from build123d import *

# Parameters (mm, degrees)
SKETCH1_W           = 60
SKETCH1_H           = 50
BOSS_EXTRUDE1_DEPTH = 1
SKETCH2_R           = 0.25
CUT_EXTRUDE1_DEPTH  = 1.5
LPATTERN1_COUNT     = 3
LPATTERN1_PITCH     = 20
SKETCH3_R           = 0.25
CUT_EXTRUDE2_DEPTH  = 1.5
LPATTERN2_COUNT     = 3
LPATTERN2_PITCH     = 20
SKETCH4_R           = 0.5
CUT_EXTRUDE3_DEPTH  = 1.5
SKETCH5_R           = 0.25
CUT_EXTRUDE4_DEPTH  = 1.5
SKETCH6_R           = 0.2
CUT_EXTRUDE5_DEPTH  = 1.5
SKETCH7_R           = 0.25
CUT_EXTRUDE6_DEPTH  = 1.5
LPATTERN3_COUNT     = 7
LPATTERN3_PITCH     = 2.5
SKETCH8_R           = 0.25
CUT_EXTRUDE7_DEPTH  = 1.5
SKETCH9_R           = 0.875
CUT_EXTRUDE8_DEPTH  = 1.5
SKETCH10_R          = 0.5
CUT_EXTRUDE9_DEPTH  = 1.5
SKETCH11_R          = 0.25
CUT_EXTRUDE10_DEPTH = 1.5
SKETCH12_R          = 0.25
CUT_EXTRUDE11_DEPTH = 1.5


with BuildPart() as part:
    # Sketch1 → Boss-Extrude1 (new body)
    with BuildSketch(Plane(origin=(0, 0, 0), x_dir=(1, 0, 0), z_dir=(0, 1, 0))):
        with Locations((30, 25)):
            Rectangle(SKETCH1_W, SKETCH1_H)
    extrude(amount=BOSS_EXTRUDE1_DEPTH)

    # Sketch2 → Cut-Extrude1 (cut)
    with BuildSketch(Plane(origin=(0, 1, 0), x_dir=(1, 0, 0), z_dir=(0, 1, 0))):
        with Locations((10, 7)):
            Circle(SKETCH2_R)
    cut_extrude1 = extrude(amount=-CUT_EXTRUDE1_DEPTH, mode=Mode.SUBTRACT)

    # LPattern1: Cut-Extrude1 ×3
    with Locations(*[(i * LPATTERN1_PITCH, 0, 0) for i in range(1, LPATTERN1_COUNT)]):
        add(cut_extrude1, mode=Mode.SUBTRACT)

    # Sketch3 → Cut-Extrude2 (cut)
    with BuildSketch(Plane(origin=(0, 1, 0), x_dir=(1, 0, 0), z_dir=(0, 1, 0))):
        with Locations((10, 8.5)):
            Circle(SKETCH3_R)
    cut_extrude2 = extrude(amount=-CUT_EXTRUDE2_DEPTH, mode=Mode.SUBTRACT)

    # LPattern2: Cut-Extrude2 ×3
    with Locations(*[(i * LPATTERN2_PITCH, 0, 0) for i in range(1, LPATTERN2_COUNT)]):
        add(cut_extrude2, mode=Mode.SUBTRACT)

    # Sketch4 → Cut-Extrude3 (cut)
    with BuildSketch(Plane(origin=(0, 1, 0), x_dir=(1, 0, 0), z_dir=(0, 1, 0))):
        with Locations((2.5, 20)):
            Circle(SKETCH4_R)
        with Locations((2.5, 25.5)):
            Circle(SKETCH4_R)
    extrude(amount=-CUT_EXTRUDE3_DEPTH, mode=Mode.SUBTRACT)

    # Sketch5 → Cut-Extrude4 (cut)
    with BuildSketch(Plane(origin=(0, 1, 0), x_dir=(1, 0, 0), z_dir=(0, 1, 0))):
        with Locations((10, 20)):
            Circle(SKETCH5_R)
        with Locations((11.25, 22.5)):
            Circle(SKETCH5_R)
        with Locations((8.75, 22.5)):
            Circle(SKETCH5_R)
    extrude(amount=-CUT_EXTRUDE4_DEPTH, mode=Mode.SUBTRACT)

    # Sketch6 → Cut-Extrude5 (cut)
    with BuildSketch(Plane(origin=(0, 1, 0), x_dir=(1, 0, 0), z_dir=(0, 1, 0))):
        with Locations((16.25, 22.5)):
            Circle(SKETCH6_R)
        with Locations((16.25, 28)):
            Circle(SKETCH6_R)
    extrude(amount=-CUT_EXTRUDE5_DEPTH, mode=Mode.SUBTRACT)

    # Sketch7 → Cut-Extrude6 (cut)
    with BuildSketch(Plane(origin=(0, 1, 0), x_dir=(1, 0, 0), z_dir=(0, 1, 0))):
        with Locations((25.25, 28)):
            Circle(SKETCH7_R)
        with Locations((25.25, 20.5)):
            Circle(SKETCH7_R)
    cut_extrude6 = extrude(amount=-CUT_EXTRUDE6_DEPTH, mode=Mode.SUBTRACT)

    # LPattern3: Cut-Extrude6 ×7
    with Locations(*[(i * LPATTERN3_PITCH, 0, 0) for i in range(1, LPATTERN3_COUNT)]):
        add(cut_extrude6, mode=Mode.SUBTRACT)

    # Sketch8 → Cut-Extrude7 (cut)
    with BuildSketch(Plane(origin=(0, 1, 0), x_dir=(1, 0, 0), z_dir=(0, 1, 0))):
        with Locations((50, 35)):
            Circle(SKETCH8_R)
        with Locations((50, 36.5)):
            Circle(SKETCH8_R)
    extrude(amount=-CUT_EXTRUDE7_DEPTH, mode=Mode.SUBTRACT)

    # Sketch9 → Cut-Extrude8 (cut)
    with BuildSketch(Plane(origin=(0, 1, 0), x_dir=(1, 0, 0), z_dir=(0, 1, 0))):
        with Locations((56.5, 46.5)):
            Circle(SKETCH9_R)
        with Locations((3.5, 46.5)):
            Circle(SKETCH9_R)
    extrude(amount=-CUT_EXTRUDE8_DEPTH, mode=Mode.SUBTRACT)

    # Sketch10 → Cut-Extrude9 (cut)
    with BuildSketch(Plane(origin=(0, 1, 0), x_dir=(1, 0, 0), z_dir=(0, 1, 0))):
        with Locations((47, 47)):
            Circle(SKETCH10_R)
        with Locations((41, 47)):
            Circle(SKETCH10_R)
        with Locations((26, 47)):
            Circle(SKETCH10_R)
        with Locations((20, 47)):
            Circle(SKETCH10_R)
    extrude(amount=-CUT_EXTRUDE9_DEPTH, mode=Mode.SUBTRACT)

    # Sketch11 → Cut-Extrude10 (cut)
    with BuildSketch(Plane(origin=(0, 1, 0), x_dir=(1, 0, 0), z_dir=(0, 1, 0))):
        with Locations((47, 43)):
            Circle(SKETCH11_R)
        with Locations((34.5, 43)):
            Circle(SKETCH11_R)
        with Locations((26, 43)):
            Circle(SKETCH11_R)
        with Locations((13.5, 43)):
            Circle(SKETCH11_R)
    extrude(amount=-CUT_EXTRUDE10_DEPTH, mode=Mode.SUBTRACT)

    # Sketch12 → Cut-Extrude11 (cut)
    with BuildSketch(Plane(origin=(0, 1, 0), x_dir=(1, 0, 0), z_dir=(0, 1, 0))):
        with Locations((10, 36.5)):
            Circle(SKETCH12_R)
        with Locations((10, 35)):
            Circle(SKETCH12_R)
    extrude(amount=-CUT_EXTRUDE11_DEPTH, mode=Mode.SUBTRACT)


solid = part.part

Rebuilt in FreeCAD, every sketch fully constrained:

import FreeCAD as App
import Part
import Sketcher


def add_polygon(sketch, points):
    """Adds a closed chain of lines whose ends are joined by coincident constraints."""
    first, n = sketch.GeometryCount, len(points)
    for a, b in zip(points, points[1:] + points[:1]):
        sketch.addGeometry(Part.LineSegment(App.Vector(*a, 0), App.Vector(*b, 0)), False)
    for i in range(n):
        sketch.addConstraint(Sketcher.Constraint("Coincident", first + i, 2, first + (i + 1) % n, 1))

doc = App.newDocument("Part")
params = doc.addObject("Spreadsheet::Sheet", "Params")
for row, (alias, value) in enumerate([
    ("sketch1_width", "60 mm"),
    ("sketch1_height", "50 mm"),
    ("pad1_length", "1 mm"),
    ("sketch2_diameter", "0.5 mm"),
    ("pocket1_length", "1.5 mm"),
    ("linearpattern_pitch", "20 mm"),
    ("sketch3_diameter", "0.5 mm"),
    ("pocket2_length", "1.5 mm"),
    ("linearpattern2_pitch", "20 mm"),
    ("sketch4_diameter", "1 mm"),
    ("pocket3_length", "1.5 mm"),
    ("sketch5_diameter", "0.5 mm"),
    ("pocket4_length", "1.5 mm"),
    ("sketch6_diameter", "0.4 mm"),
    ("pocket5_length", "1.5 mm"),
    ("sketch7_diameter", "0.5 mm"),
    ("pocket6_length", "1.5 mm"),
    ("linearpattern3_pitch", "2.5 mm"),
    ("sketch8_diameter", "0.5 mm"),
    ("pocket7_length", "1.5 mm"),
    ("sketch9_diameter", "1.75 mm"),
    ("pocket8_length", "1.5 mm"),
    ("sketch10_diameter", "1 mm"),
    ("pocket9_length", "1.5 mm"),
    ("sketch11_diameter", "0.5 mm"),
    ("pocket10_length", "1.5 mm"),
    ("sketch12_diameter", "0.5 mm"),
    ("pocket11_length", "1.5 mm"),
], start=1):
    params.set(f"A{row}", alias)
    params.set(f"B{row}", "=" + value)
    params.setAlias(f"B{row}", alias)

body = doc.addObject("PartDesign::Body", "Body")

sketch1 = body.newObject("Sketcher::SketchObject", "Sketch")
sketch1.AttachmentSupport = (doc.getObject("XZ_Plane"), [""])
sketch1.MapMode = "FlatFace"
add_polygon(sketch1, [(0, -50), (0, 0), (60, 0), (60, -50)])
sketch1.addConstraint([
    Sketcher.Constraint("Vertical", 0),
    Sketcher.Constraint("Horizontal", 1),
    Sketcher.Constraint("Vertical", 2),
    Sketcher.Constraint("Horizontal", 3),
    Sketcher.Constraint("Coincident", 0, 2, -1, 1),
    Sketcher.Constraint("DistanceX", 1, 1, 1, 2, 60.0),
    Sketcher.Constraint("DistanceY", 0, 1, 0, 2, 50.0),
])
sketch1.setExpression("Constraints[9]", "Params.sketch1_width")
sketch1.setExpression("Constraints[10]", "Params.sketch1_height")
pad1 = body.newObject("PartDesign::Pad", "Pad")
pad1.Profile = sketch1
pad1.setExpression("Length", "Params.pad1_length")
pad1.Reversed = True

sketch2 = body.newObject("Sketcher::SketchObject", "Sketch001")
sketch2.AttachmentSupport = (doc.getObject("XZ_Plane"), [""])
sketch2.MapMode = "FlatFace"
sketch2.AttachmentOffset = App.Placement(App.Vector(0, 0, -1), App.Rotation())
sketch2.addGeometry(Part.Circle(App.Vector(10, -7, 0), App.Vector(0, 0, 1), 0.25), False)
sketch2.addConstraint([
    Sketcher.Constraint("Diameter", 0, 0.5),
    Sketcher.Constraint("DistanceX", -1, 1, 0, 3, 10.0),
    Sketcher.Constraint("DistanceY", 0, 3, -1, 1, 7.0),
])
sketch2.setExpression("Constraints[0]", "Params.sketch2_diameter")
pocket1 = body.newObject("PartDesign::Pocket", "Pocket")
pocket1.Profile = sketch2
pocket1.setExpression("Length", "Params.pocket1_length")
pocket1.Reversed = True
doc.recompute()

linearpattern = body.newObject("PartDesign::LinearPattern", "LinearPattern")
linearpattern.Originals = [pocket1]
linearpattern.Direction = (doc.getObject("X_Axis"), [""])
linearpattern.Mode = "offset"
linearpattern.setExpression("Offset", "Params.linearpattern_pitch")
linearpattern.Occurrences = 3
body.Tip = linearpattern

sketch3 = body.newObject("Sketcher::SketchObject", "Sketch002")
sketch3.AttachmentSupport = (doc.getObject("XZ_Plane"), [""])
sketch3.MapMode = "FlatFace"
sketch3.AttachmentOffset = App.Placement(App.Vector(0, 0, -1), App.Rotation())
sketch3.addGeometry(Part.Circle(App.Vector(10, -8.5, 0), App.Vector(0, 0, 1), 0.25), False)
sketch3.addConstraint([
    Sketcher.Constraint("Diameter", 0, 0.5),
    Sketcher.Constraint("DistanceX", -1, 1, 0, 3, 10.0),
    Sketcher.Constraint("DistanceY", 0, 3, -1, 1, 8.5),
])
sketch3.setExpression("Constraints[0]", "Params.sketch3_diameter")
pocket2 = body.newObject("PartDesign::Pocket", "Pocket001")
pocket2.Profile = sketch3
pocket2.setExpression("Length", "Params.pocket2_length")
pocket2.Reversed = True
doc.recompute()

linearpattern2 = body.newObject("PartDesign::LinearPattern", "LinearPattern001")
linearpattern2.Originals = [pocket2]
linearpattern2.Direction = (doc.getObject("X_Axis"), [""])
linearpattern2.Mode = "offset"
linearpattern2.setExpression("Offset", "Params.linearpattern2_pitch")
linearpattern2.Occurrences = 3
body.Tip = linearpattern2

sketch4 = body.newObject("Sketcher::SketchObject", "Sketch003")
sketch4.AttachmentSupport = (doc.getObject("XZ_Plane"), [""])
sketch4.MapMode = "FlatFace"
sketch4.AttachmentOffset = App.Placement(App.Vector(0, 0, -1), App.Rotation())
sketch4.addGeometry([
    Part.Circle(App.Vector(2.5, -20, 0), App.Vector(0, 0, 1), 0.5),
    Part.Circle(App.Vector(2.5, -25.5, 0), App.Vector(0, 0, 1), 0.5),
], False)
sketch4.addConstraint([
    Sketcher.Constraint("Equal", 0, 1),
    Sketcher.Constraint("Vertical", 0, 3, 1, 3),
    Sketcher.Constraint("Diameter", 0, 1.0),
    Sketcher.Constraint("DistanceY", 0, 3, -1, 1, 20.0),
    Sketcher.Constraint("DistanceX", -1, 1, 0, 3, 2.5),
    Sketcher.Constraint("DistanceY", 1, 3, -1, 1, 25.5),
])
sketch4.setExpression("Constraints[2]", "Params.sketch4_diameter")
pocket3 = body.newObject("PartDesign::Pocket", "Pocket002")
pocket3.Profile = sketch4
pocket3.setExpression("Length", "Params.pocket3_length")
pocket3.Reversed = True

sketch5 = body.newObject("Sketcher::SketchObject", "Sketch004")
sketch5.AttachmentSupport = (doc.getObject("XZ_Plane"), [""])
sketch5.MapMode = "FlatFace"
sketch5.AttachmentOffset = App.Placement(App.Vector(0, 0, -1), App.Rotation())
sketch5.addGeometry([
    Part.Circle(App.Vector(10, -20, 0), App.Vector(0, 0, 1), 0.25),
    Part.Circle(App.Vector(11.25, -22.5, 0), App.Vector(0, 0, 1), 0.25),
    Part.Circle(App.Vector(8.75, -22.5, 0), App.Vector(0, 0, 1), 0.25),
], False)
sketch5.addConstraint([
    Sketcher.Constraint("Equal", 0, 1),
    Sketcher.Constraint("Equal", 1, 2),
    Sketcher.Constraint("Horizontal", 1, 3, 2, 3),
    Sketcher.Constraint("Diameter", 0, 0.5),
    Sketcher.Constraint("DistanceX", -1, 1, 0, 3, 10.0),
    Sketcher.Constraint("DistanceY", 0, 3, -1, 1, 20.0),
    Sketcher.Constraint("DistanceY", 1, 3, -1, 1, 22.5),
    Sketcher.Constraint("DistanceX", 2, 3, 1, 3, 2.5),
    Sketcher.Constraint("DistanceX", -1, 1, 1, 3, 11.25),
])
sketch5.setExpression("Constraints[3]", "Params.sketch5_diameter")
pocket4 = body.newObject("PartDesign::Pocket", "Pocket003")
pocket4.Profile = sketch5
pocket4.setExpression("Length", "Params.pocket4_length")
pocket4.Reversed = True

sketch6 = body.newObject("Sketcher::SketchObject", "Sketch005")
sketch6.AttachmentSupport = (doc.getObject("XZ_Plane"), [""])
sketch6.MapMode = "FlatFace"
sketch6.AttachmentOffset = App.Placement(App.Vector(0, 0, -1), App.Rotation())
sketch6.addGeometry([
    Part.Circle(App.Vector(16.25, -22.5, 0), App.Vector(0, 0, 1), 0.2),
    Part.Circle(App.Vector(16.25, -28, 0), App.Vector(0, 0, 1), 0.2),
], False)
sketch6.addConstraint([
    Sketcher.Constraint("Equal", 0, 1),
    Sketcher.Constraint("Vertical", 0, 3, 1, 3),
    Sketcher.Constraint("Diameter", 0, 0.4),
    Sketcher.Constraint("DistanceY", 1, 3, -1, 1, 28.0),
    Sketcher.Constraint("DistanceY", 0, 3, -1, 1, 22.5),
    Sketcher.Constraint("DistanceX", -1, 1, 0, 3, 16.25),
])
sketch6.setExpression("Constraints[2]", "Params.sketch6_diameter")
pocket5 = body.newObject("PartDesign::Pocket", "Pocket004")
pocket5.Profile = sketch6
pocket5.setExpression("Length", "Params.pocket5_length")
pocket5.Reversed = True

sketch7 = body.newObject("Sketcher::SketchObject", "Sketch006")
sketch7.AttachmentSupport = (doc.getObject("XZ_Plane"), [""])
sketch7.MapMode = "FlatFace"
sketch7.AttachmentOffset = App.Placement(App.Vector(0, 0, -1), App.Rotation())
sketch7.addGeometry([
    Part.Circle(App.Vector(25.25, -28, 0), App.Vector(0, 0, 1), 0.25),
    Part.Circle(App.Vector(25.25, -20.5, 0), App.Vector(0, 0, 1), 0.25),
], False)
sketch7.addConstraint([
    Sketcher.Constraint("Equal", 0, 1),
    Sketcher.Constraint("Vertical", 0, 3, 1, 3),
    Sketcher.Constraint("Diameter", 0, 0.5),
    Sketcher.Constraint("DistanceY", 0, 3, -1, 1, 28.0),
    Sketcher.Constraint("DistanceY", 1, 3, -1, 1, 20.5),
    Sketcher.Constraint("DistanceX", -1, 1, 0, 3, 25.25),
])
sketch7.setExpression("Constraints[2]", "Params.sketch7_diameter")
pocket6 = body.newObject("PartDesign::Pocket", "Pocket005")
pocket6.Profile = sketch7
pocket6.setExpression("Length", "Params.pocket6_length")
pocket6.Reversed = True
doc.recompute()

linearpattern3 = body.newObject("PartDesign::LinearPattern", "LinearPattern002")
linearpattern3.Originals = [pocket6]
linearpattern3.Direction = (doc.getObject("X_Axis"), [""])
linearpattern3.Mode = "offset"
linearpattern3.setExpression("Offset", "Params.linearpattern3_pitch")
linearpattern3.Occurrences = 7
body.Tip = linearpattern3

sketch8 = body.newObject("Sketcher::SketchObject", "Sketch007")
sketch8.AttachmentSupport = (doc.getObject("XZ_Plane"), [""])
sketch8.MapMode = "FlatFace"
sketch8.AttachmentOffset = App.Placement(App.Vector(0, 0, -1), App.Rotation())
sketch8.addGeometry([
    Part.Circle(App.Vector(50, -35, 0), App.Vector(0, 0, 1), 0.25),
    Part.Circle(App.Vector(50, -36.5, 0), App.Vector(0, 0, 1), 0.25),
], False)
sketch8.addConstraint([
    Sketcher.Constraint("Equal", 0, 1),
    Sketcher.Constraint("Vertical", 0, 3, 1, 3),
    Sketcher.Constraint("Diameter", 0, 0.5),
    Sketcher.Constraint("DistanceX", -1, 1, 0, 3, 50.0),
    Sketcher.Constraint("DistanceY", 0, 3, -1, 1, 35.0),
    Sketcher.Constraint("DistanceY", 1, 3, -1, 1, 36.5),
])
sketch8.setExpression("Constraints[2]", "Params.sketch8_diameter")
pocket7 = body.newObject("PartDesign::Pocket", "Pocket006")
pocket7.Profile = sketch8
pocket7.setExpression("Length", "Params.pocket7_length")
pocket7.Reversed = True

sketch9 = body.newObject("Sketcher::SketchObject", "Sketch008")
sketch9.AttachmentSupport = (doc.getObject("XZ_Plane"), [""])
sketch9.MapMode = "FlatFace"
sketch9.AttachmentOffset = App.Placement(App.Vector(0, 0, -1), App.Rotation())
sketch9.addGeometry([
    Part.Circle(App.Vector(56.5, -46.5, 0), App.Vector(0, 0, 1), 0.875),
    Part.Circle(App.Vector(3.5, -46.5, 0), App.Vector(0, 0, 1), 0.875),
], False)
sketch9.addConstraint([
    Sketcher.Constraint("Equal", 0, 1),
    Sketcher.Constraint("Horizontal", 0, 3, 1, 3),
    Sketcher.Constraint("Diameter", 0, 1.75),
    Sketcher.Constraint("DistanceX", 1, 3, 0, 3, 53.0),
    Sketcher.Constraint("DistanceX", -1, 1, 0, 3, 56.5),
    Sketcher.Constraint("DistanceY", 0, 3, -1, 1, 46.5),
])
sketch9.setExpression("Constraints[2]", "Params.sketch9_diameter")
pocket8 = body.newObject("PartDesign::Pocket", "Pocket007")
pocket8.Profile = sketch9
pocket8.setExpression("Length", "Params.pocket8_length")
pocket8.Reversed = True

sketch10 = body.newObject("Sketcher::SketchObject", "Sketch009")
sketch10.AttachmentSupport = (doc.getObject("XZ_Plane"), [""])
sketch10.MapMode = "FlatFace"
sketch10.AttachmentOffset = App.Placement(App.Vector(0, 0, -1), App.Rotation())
sketch10.addGeometry([
    Part.Circle(App.Vector(47, -47, 0), App.Vector(0, 0, 1), 0.5),
    Part.Circle(App.Vector(41, -47, 0), App.Vector(0, 0, 1), 0.5),
    Part.Circle(App.Vector(26, -47, 0), App.Vector(0, 0, 1), 0.5),
    Part.Circle(App.Vector(20, -47, 0), App.Vector(0, 0, 1), 0.5),
], False)
sketch10.addConstraint([
    Sketcher.Constraint("Equal", 0, 1),
    Sketcher.Constraint("Equal", 1, 2),
    Sketcher.Constraint("Equal", 2, 3),
    Sketcher.Constraint("Horizontal", 0, 3, 1, 3),
    Sketcher.Constraint("Horizontal", 1, 3, 2, 3),
    Sketcher.Constraint("Horizontal", 2, 3, 3, 3),
    Sketcher.Constraint("Diameter", 0, 1.0),
    Sketcher.Constraint("DistanceX", -1, 1, 0, 3, 47.0),
    Sketcher.Constraint("DistanceY", 0, 3, -1, 1, 47.0),
    Sketcher.Constraint("DistanceX", -1, 1, 1, 3, 41.0),
    Sketcher.Constraint("DistanceX", -1, 1, 2, 3, 26.0),
    Sketcher.Constraint("DistanceX", -1, 1, 3, 3, 20.0),
])
sketch10.setExpression("Constraints[6]", "Params.sketch10_diameter")
pocket9 = body.newObject("PartDesign::Pocket", "Pocket008")
pocket9.Profile = sketch10
pocket9.setExpression("Length", "Params.pocket9_length")
pocket9.Reversed = True

sketch11 = body.newObject("Sketcher::SketchObject", "Sketch010")
sketch11.AttachmentSupport = (doc.getObject("XZ_Plane"), [""])
sketch11.MapMode = "FlatFace"
sketch11.AttachmentOffset = App.Placement(App.Vector(0, 0, -1), App.Rotation())
sketch11.addGeometry([
    Part.Circle(App.Vector(47, -43, 0), App.Vector(0, 0, 1), 0.25),
    Part.Circle(App.Vector(34.5, -43, 0), App.Vector(0, 0, 1), 0.25),
    Part.Circle(App.Vector(26, -43, 0), App.Vector(0, 0, 1), 0.25),
    Part.Circle(App.Vector(13.5, -43, 0), App.Vector(0, 0, 1), 0.25),
], False)
sketch11.addConstraint([
    Sketcher.Constraint("Equal", 0, 1),
    Sketcher.Constraint("Equal", 1, 2),
    Sketcher.Constraint("Equal", 2, 3),
    Sketcher.Constraint("Horizontal", 0, 3, 1, 3),
    Sketcher.Constraint("Horizontal", 1, 3, 2, 3),
    Sketcher.Constraint("Horizontal", 2, 3, 3, 3),
    Sketcher.Constraint("Diameter", 0, 0.5),
    Sketcher.Constraint("DistanceX", -1, 1, 0, 3, 47.0),
    Sketcher.Constraint("DistanceY", 0, 3, -1, 1, 43.0),
    Sketcher.Constraint("DistanceX", -1, 1, 2, 3, 26.0),
    Sketcher.Constraint("DistanceX", 3, 3, 1, 3, 21.0),
    Sketcher.Constraint("DistanceX", -1, 1, 1, 3, 34.5),
])
sketch11.setExpression("Constraints[6]", "Params.sketch11_diameter")
pocket10 = body.newObject("PartDesign::Pocket", "Pocket009")
pocket10.Profile = sketch11
pocket10.setExpression("Length", "Params.pocket10_length")
pocket10.Reversed = True

sketch12 = body.newObject("Sketcher::SketchObject", "Sketch011")
sketch12.AttachmentSupport = (doc.getObject("XZ_Plane"), [""])
sketch12.MapMode = "FlatFace"
sketch12.AttachmentOffset = App.Placement(App.Vector(0, 0, -1), App.Rotation())
sketch12.addGeometry([
    Part.Circle(App.Vector(10, -36.5, 0), App.Vector(0, 0, 1), 0.25),
    Part.Circle(App.Vector(10, -35, 0), App.Vector(0, 0, 1), 0.25),
], False)
sketch12.addConstraint([
    Sketcher.Constraint("Equal", 0, 1),
    Sketcher.Constraint("Vertical", 0, 3, 1, 3),
    Sketcher.Constraint("Diameter", 0, 0.5),
    Sketcher.Constraint("DistanceX", -1, 1, 0, 3, 10.0),
    Sketcher.Constraint("DistanceY", 1, 3, -1, 1, 35.0),
    Sketcher.Constraint("DistanceY", 0, 3, -1, 1, 36.5),
])
sketch12.setExpression("Constraints[2]", "Params.sketch12_diameter")
pocket11 = body.newObject("PartDesign::Pocket", "Pocket010")
pocket11.Profile = sketch12
pocket11.setExpression("Length", "Params.pocket11_length")
pocket11.Reversed = True

doc.recompute()
